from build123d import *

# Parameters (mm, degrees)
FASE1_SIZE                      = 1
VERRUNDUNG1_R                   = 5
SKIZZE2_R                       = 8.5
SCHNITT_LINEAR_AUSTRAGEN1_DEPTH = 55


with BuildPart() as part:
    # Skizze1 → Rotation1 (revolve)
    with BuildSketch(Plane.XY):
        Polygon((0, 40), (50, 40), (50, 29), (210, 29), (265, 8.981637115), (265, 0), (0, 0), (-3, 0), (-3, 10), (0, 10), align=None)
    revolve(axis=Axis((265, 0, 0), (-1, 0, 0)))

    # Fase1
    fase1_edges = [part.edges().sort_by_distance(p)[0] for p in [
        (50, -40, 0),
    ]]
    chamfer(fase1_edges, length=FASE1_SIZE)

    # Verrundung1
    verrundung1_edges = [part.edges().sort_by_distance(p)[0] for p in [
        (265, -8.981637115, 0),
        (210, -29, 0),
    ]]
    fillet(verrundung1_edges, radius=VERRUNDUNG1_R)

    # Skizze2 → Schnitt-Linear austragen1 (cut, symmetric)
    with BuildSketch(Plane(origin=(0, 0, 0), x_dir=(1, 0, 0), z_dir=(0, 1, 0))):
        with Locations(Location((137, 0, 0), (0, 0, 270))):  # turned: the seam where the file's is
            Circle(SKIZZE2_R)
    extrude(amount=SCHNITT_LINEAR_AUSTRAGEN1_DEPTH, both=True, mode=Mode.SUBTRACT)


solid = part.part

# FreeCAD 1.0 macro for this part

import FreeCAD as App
import Part
import Sketcher
Q = App.Units.Quantity


def edges_at(feature, points):
    """Names of the edges that pass closest to the given points."""
    edges = feature.Shape.Edges
    near = lambda p: min(range(len(edges)), key=lambda i: edges[i].distToShape(Part.Vertex(*p))[0])
    return sorted({f"Edge{near(p) + 1}" for p in points})


def add_polygon(sketch, points):
    """Adds a closed chain of lines whose ends are joined by coincident constraints."""
    first, n = sketch.GeometryCount, len(points)
    for a, b in zip(points, points[1:] + points[:1]):
        sketch.addGeometry(Part.LineSegment(App.Vector(*a, 0), App.Vector(*b, 0)), False)
    for i in range(n):
        sketch.addConstraint(Sketcher.Constraint("Coincident", first + i, 2, first + (i + 1) % n, 1))

doc = App.newDocument("Part")
body = doc.addObject("PartDesign::Body", "Body")

# Sketch on XY plane
sketch1 = doc.addObject("Sketcher::SketchObject", "Sketch")
body.addObject(sketch1)
sketch1.AttachmentSupport = (doc.XY_Plane, [""])
sketch1.MapMode = "FlatFace"
add_polygon(sketch1, [(50, 40), (0, 40), (0, 10), (-3, 10), (-3, 0), (265, 0), (265, 8.981637), (210, 29), (50, 29)])  # lines 0-8
sketch1.addConstraint([
    Sketcher.Constraint("Horizontal", 0),
    Sketcher.Constraint("Vertical", 1),
    Sketcher.Constraint("Horizontal", 2),
    Sketcher.Constraint("Vertical", 3),
    Sketcher.Constraint("Horizontal", 4),
    Sketcher.Constraint("Vertical", 5),
    Sketcher.Constraint("Horizontal", 7),
    Sketcher.Constraint("Vertical", 8),
    Sketcher.Constraint("PointOnObject", 0, 2, -2),
    Sketcher.Constraint("PointOnObject", 3, 2, -1),
    Sketcher.Constraint("DistanceX", 0, 2, 0, 1, 50.0),
    Sketcher.Constraint("DistanceX", 2, 2, 2, 1, 3.0),
    Sketcher.Constraint("DistanceX", 4, 1, 4, 2, 268.0),
    Sketcher.Constraint("DistanceX", 7, 2, 7, 1, 160.0),
    Sketcher.Constraint("DistanceY", 1, 2, 1, 1, 30.0),
    Sketcher.Constraint("DistanceY", 3, 2, 3, 1, 10.0),
    Sketcher.Constraint("DistanceY", 8, 1, 8, 2, 11.0),
    Sketcher.Constraint("Angle", 6, Q("160 deg")),
])
revolution = doc.addObject("PartDesign::Revolution", "Revolution")
body.addObject(revolution)
revolution.Profile = sketch1
revolution.ReferenceAxis = (sketch1, ["H_Axis"])
revolution.Angle = 360
doc.recompute()

chamfer = doc.addObject("PartDesign::Chamfer", "Chamfer")
body.addObject(chamfer)
chamfer.Base = (revolution, edges_at(revolution, [(50, -40, 0)]))
chamfer.Size = 1
doc.recompute()

fillet = doc.addObject("PartDesign::Fillet", "Fillet")
body.addObject(fillet)
fillet.Base = (chamfer, edges_at(chamfer, [(265, -8.982, 0), (210, -29, 0)]))
fillet.Radius = 5

# Sketch on XZ plane
sketch2 = doc.addObject("Sketcher::SketchObject", "Sketch001")
body.addObject(sketch2)
sketch2.AttachmentSupport = (doc.XZ_Plane, [""])
sketch2.MapMode = "FlatFace"
sketch2.addGeometry(Part.Circle(App.Vector(137, 0, 0), App.Vector(0, 0, 1), 8.5), False)
sketch2.addConstraint([
    Sketcher.Constraint("PointOnObject", 0, 3, -1),
    Sketcher.Constraint("Diameter", 0, 17.0),
    Sketcher.Constraint("DistanceX", -1, 1, 0, 3, 137.0),
])
pocket1 = doc.addObject("PartDesign::Pocket", "Pocket")
body.addObject(pocket1)
pocket1.Profile = sketch2
pocket1.Length = 110
pocket1.Midplane = True

doc.recompute()
